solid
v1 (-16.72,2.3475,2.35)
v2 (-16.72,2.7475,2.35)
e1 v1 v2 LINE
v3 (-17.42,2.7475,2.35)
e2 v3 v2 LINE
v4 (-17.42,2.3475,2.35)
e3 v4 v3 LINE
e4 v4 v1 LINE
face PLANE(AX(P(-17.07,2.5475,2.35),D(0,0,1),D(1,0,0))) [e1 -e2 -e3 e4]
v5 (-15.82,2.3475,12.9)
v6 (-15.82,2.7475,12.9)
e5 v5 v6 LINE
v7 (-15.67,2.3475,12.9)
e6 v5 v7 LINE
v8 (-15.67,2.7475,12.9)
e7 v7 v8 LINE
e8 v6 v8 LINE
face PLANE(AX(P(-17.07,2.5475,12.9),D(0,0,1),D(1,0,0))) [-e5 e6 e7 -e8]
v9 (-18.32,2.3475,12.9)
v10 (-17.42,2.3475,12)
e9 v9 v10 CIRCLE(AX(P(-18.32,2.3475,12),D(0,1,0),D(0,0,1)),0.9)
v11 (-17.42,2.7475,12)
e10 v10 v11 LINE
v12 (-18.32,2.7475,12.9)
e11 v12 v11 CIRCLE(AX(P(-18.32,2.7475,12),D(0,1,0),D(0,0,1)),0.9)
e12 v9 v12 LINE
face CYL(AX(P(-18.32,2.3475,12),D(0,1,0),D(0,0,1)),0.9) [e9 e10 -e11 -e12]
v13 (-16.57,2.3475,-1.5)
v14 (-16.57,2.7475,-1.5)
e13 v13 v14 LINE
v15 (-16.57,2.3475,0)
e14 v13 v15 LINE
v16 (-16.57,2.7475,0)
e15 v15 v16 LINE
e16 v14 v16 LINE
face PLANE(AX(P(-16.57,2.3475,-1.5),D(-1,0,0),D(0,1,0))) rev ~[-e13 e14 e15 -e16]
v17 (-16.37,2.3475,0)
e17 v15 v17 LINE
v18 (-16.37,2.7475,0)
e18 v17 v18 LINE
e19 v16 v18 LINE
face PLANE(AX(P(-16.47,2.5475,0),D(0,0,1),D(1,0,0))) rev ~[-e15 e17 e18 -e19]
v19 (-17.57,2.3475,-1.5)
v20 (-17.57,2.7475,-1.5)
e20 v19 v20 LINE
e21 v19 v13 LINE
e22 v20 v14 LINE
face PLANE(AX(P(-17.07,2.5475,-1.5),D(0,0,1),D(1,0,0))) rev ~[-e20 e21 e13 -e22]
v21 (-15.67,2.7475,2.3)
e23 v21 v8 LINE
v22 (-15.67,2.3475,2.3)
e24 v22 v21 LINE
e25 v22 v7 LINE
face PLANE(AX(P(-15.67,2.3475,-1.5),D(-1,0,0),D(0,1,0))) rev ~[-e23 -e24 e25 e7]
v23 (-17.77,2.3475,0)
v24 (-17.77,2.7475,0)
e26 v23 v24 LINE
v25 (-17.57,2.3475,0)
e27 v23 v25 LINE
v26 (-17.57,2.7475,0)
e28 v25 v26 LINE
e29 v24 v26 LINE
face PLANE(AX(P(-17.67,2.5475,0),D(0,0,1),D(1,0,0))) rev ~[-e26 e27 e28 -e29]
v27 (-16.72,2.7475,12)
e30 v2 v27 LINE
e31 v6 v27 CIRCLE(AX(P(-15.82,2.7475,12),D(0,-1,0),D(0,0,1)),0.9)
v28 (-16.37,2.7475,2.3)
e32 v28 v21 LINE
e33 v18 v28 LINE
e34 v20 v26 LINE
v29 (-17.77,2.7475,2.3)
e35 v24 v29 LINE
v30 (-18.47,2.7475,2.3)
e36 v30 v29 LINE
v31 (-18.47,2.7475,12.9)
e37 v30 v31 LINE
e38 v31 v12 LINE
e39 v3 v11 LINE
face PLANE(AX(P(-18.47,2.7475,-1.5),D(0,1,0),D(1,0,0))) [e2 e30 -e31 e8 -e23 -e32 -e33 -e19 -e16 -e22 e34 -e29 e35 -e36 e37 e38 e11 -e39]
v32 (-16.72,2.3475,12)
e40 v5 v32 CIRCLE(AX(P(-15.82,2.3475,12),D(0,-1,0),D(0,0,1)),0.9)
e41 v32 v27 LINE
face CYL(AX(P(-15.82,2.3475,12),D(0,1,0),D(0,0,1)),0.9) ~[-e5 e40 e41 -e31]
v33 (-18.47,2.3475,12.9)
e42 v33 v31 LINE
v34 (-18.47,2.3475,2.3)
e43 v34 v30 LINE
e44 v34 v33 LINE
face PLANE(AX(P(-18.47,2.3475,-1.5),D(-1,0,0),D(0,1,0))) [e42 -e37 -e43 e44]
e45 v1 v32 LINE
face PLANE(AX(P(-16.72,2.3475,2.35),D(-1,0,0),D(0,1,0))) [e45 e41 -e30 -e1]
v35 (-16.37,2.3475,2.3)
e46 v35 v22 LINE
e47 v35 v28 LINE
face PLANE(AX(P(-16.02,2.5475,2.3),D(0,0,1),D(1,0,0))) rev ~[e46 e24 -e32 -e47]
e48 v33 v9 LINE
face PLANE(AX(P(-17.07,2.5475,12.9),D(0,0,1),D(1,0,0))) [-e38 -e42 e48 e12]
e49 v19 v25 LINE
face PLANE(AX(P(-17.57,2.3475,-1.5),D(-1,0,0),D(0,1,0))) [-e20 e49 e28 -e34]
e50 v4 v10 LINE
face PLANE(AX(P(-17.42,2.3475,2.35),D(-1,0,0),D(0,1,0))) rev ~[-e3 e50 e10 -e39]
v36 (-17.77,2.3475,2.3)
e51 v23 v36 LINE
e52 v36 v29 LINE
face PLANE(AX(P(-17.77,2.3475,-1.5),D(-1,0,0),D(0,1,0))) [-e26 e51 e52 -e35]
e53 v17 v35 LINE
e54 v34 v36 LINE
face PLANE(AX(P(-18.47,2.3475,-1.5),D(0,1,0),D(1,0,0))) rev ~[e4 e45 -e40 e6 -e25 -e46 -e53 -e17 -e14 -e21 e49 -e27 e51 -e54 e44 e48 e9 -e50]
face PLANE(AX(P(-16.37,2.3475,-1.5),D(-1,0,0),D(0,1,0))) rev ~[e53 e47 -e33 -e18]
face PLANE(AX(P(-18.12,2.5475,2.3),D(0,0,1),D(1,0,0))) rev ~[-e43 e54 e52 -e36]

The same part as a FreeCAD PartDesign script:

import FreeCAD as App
import Part
import Sketcher
from FreeCAD import Vector
Q = App.Units.Quantity


def edges_at(feature, points):
    """Names of the edges that pass closest to the given points."""
    edges = feature.Shape.Edges
    near = lambda p: min(range(len(edges)), key=lambda i: edges[i].distToShape(Part.Vertex(*p))[0])
    return sorted({f"Edge{near(p) + 1}" for p in points})

doc = App.newDocument("Part")
params = doc.addObject("Spreadsheet::Sheet", "Params")
for row, (alias, value) in enumerate([
    ("sketch1_width", "2.8 mm"),
    ("sketch1_height", "0.4 mm"),
    ("pad1_length", "14.4 mm"),
    ("sketch2_width", "0.7 mm"),
    ("sketch2_height", "0.4 mm"),
    ("pocket1_length", "10.55 mm"),
    ("sketch3_width", "0.7 mm"),
    ("sketch3_height", "0.4 mm"),
    ("pocket2_length", "3.8 mm"),
    ("sketch4_width", "0.7 mm"),
    ("sketch4_height", "0.4 mm"),
    ("pocket3_length", "3.8 mm"),
    ("sketch5_width", "0.2 mm"),
    ("sketch5_height", "0.4 mm"),
    ("pocket4_length", "1.5 mm"),
    ("sketch6_width", "0.2 mm"),
    ("sketch6_height", "0.4 mm"),
    ("pocket5_length", "1.5 mm"),
    ("fillet_radius", "0.9 mm"),
], start=1):
    params.set(f"A{row}", alias)
    params.set(f"B{row}", "=" + value)
    params.setAlias(f"B{row}", alias)

body = doc.addObject("PartDesign::Body", "Body")

sketch1 = body.newObject("Sketcher::SketchObject", "Sketch")
sketch1.AttachmentSupport = (doc.getObject("XY_Plane"), [""])
sketch1.MapMode = "FlatFace"
sketch1.AttachmentOffset = App.Placement(Vector(0, 0, -1.5), App.Rotation())
sketch1.addGeometry([
    Part.LineSegment(Vector(-20.85, -2.34, 0), Vector(-20.85, -2.74, 0)),
    Part.LineSegment(Vector(-20.85, -2.74, 0), Vector(-18.05, -2.74, 0)),
    Part.LineSegment(Vector(-18.05, -2.74, 0), Vector(-18.05, -2.34, 0)),
    Part.LineSegment(Vector(-18.05, -2.34, 0), Vector(-20.85, -2.34, 0)),
], False)
sketch1.addConstraint([
    Sketcher.Constraint("Coincident", 0, 2, 1, 1),
    Sketcher.Constraint("Coincident", 1, 2, 2, 1),
    Sketcher.Constraint("Coincident", 2, 2, 3, 1),
    Sketcher.Constraint("Coincident", 3, 2, 0, 1),
    Sketcher.Constraint("Vertical", 0),
    Sketcher.Constraint("Horizontal", 1),
    Sketcher.Constraint("Vertical", 2),
    Sketcher.Constraint("Horizontal", 3),
    Sketcher.Constraint("DistanceX", 1, 1, 1, 2, Q("2.8 mm")),
    Sketcher.Constraint("DistanceY", 0, 2, 0, 1, Q("0.4 mm")),
    Sketcher.Constraint("DistanceX", 0, 2, -1, 1, Q("20.85 mm")),
    Sketcher.Constraint("DistanceY", 0, 2, -1, 1, Q("2.74 mm")),
])
sketch1.setExpression("Constraints[8]", "Params.sketch1_width")
sketch1.setExpression("Constraints[9]", "Params.sketch1_height")
pad1 = body.newObject("PartDesign::Pad", "Pad")
pad1.Profile = sketch1
pad1.setExpression("Length", "Params.pad1_length")

sketch2 = body.newObject("Sketcher::SketchObject", "Sketch001")
sketch2.AttachmentSupport = (doc.getObject("XY_Plane"), [""])
sketch2.MapMode = "FlatFace"
sketch2.AttachmentOffset = App.Placement(Vector(0, 0, 2.35), App.Rotation())
sketch2.addGeometry([
    Part.LineSegment(Vector(-19.8, -2.34, 0), Vector(-19.8, -2.74, 0)),
    Part.LineSegment(Vector(-19.8, -2.74, 0), Vector(-19.1, -2.74, 0)),
    Part.LineSegment(Vector(-19.1, -2.74, 0), Vector(-19.1, -2.34, 0)),
    Part.LineSegment(Vector(-19.1, -2.34, 0), Vector(-19.8, -2.34, 0)),
], False)
sketch2.addConstraint([
    Sketcher.Constraint("Coincident", 0, 2, 1, 1),
    Sketcher.Constraint("Coincident", 1, 2, 2, 1),
    Sketcher.Constraint("Coincident", 2, 2, 3, 1),
    Sketcher.Constraint("Coincident", 3, 2, 0, 1),
    Sketcher.Constraint("Vertical", 0),
    Sketcher.Constraint("Horizontal", 1),
    Sketcher.Constraint("Vertical", 2),
    Sketcher.Constraint("Horizontal", 3),
    Sketcher.Constraint("DistanceX", 1, 1, 1, 2, Q("0.7 mm")),
    Sketcher.Constraint("DistanceY", 0, 2, 0, 1, Q("0.4 mm")),
    Sketcher.Constraint("DistanceX", 0, 2, -1, 1, Q("19.8 mm")),
    Sketcher.Constraint("DistanceY", 0, 2, -1, 1, Q("2.74 mm")),
])
sketch2.setExpression("Constraints[8]", "Params.sketch2_width")
sketch2.setExpression("Constraints[9]", "Params.sketch2_height")
pocket1 = body.newObject("PartDesign::Pocket", "Pocket")
pocket1.Profile = sketch2
pocket1.setExpression("Length", "Params.pocket1_length")
pocket1.Reversed = True

sketch3 = body.newObject("Sketcher::SketchObject", "Sketch002")
sketch3.AttachmentSupport = (doc.getObject("XY_Plane"), [""])
sketch3.MapMode = "FlatFace"
sketch3.AttachmentOffset = App.Placement(Vector(0, 0, -1.5), App.Rotation())
sketch3.addGeometry([
    Part.LineSegment(Vector(-20.85, -2.34, 0), Vector(-20.85, -2.74, 0)),
    Part.LineSegment(Vector(-20.85, -2.74, 0), Vector(-20.15, -2.74, 0)),
    Part.LineSegment(Vector(-20.15, -2.74, 0), Vector(-20.15, -2.34, 0)),
    Part.LineSegment(Vector(-20.15, -2.34, 0), Vector(-20.85, -2.34, 0)),
], False)
sketch3.addConstraint([
    Sketcher.Constraint("Coincident", 0, 2, 1, 1),
    Sketcher.Constraint("Coincident", 1, 2, 2, 1),
    Sketcher.Constraint("Coincident", 2, 2, 3, 1),
    Sketcher.Constraint("Coincident", 3, 2, 0, 1),
    Sketcher.Constraint("Vertical", 0),
    Sketcher.Constraint("Horizontal", 1),
    Sketcher.Constraint("Vertical", 2),
    Sketcher.Constraint("Horizontal", 3),
    Sketcher.Constraint("DistanceX", 1, 1, 1, 2, Q("0.7 mm")),
    Sketcher.Constraint("DistanceY", 0, 2, 0, 1, Q("0.4 mm")),
    Sketcher.Constraint("DistanceX", 0, 2, -1, 1, Q("20.85 mm")),
    Sketcher.Constraint("DistanceY", 0, 2, -1, 1, Q("2.74 mm")),
])
sketch3.setExpression("Constraints[8]", "Params.sketch3_width")
sketch3.setExpression("Constraints[9]", "Params.sketch3_height")
pocket2 = body.newObject("PartDesign::Pocket", "Pocket001")
pocket2.Profile = sketch3
pocket2.setExpression("Length", "Params.pocket2_length")
pocket2.Reversed = True

sketch4 = body.newObject("Sketcher::SketchObject", "Sketch003")
sketch4.AttachmentSupport = (doc.getObject("XY_Plane"), [""])
sketch4.MapMode = "FlatFace"
sketch4.AttachmentOffset = App.Placement(Vector(0, 0, -1.5), App.Rotation())
sketch4.addGeometry([
    Part.LineSegment(Vector(-18.75, -2.34, 0), Vector(-18.75, -2.74, 0)),
    Part.LineSegment(Vector(-18.75, -2.74, 0), Vector(-18.05, -2.74, 0)),
    Part.LineSegment(Vector(-18.05, -2.74, 0), Vector(-18.05, -2.34, 0)),
    Part.LineSegment(Vector(-18.05, -2.34, 0), Vector(-18.75, -2.34, 0)),
], False)
sketch4.addConstraint([
    Sketcher.Constraint("Coincident", 0, 2, 1, 1),
    Sketcher.Constraint("Coincident", 1, 2, 2, 1),
    Sketcher.Constraint("Coincident", 2, 2, 3, 1),
    Sketcher.Constraint("Coincident", 3, 2, 0, 1),
    Sketcher.Constraint("Vertical", 0),
    Sketcher.Constraint("Horizontal", 1),
    Sketcher.Constraint("Vertical", 2),
    Sketcher.Constraint("Horizontal", 3),
    Sketcher.Constraint("DistanceX", 1, 1, 1, 2, Q("0.7 mm")),
    Sketcher.Constraint("DistanceY", 0, 2, 0, 1, Q("0.4 mm")),
    Sketcher.Constraint("DistanceX", 0, 2, -1, 1, Q("18.75 mm")),
    Sketcher.Constraint("DistanceY", 0, 2, -1, 1, Q("2.74 mm")),
])
sketch4.setExpression("Constraints[8]", "Params.sketch4_width")
sketch4.setExpression("Constraints[9]", "Params.sketch4_height")
pocket3 = body.newObject("PartDesign::Pocket", "Pocket002")
pocket3.Profile = sketch4
pocket3.setExpression("Length", "Params.pocket3_length")
pocket3.Reversed = True

sketch5 = body.newObject("Sketcher::SketchObject", "Sketch004")
sketch5.AttachmentSupport = (doc.getObject("XY_Plane"), [""])
sketch5.MapMode = "FlatFace"
sketch5.AttachmentOffset = App.Placement(Vector(0, 0, -1.5), App.Rotation())
sketch5.addGeometry([
    Part.LineSegment(Vector(-20.15, -2.34, 0), Vector(-20.15, -2.74, 0)),
    Part.LineSegment(Vector(-20.15, -2.74, 0), Vector(-19.95, -2.74, 0)),
    Part.LineSegment(Vector(-19.95, -2.74, 0), Vector(-19.95, -2.34, 0)),
    Part.LineSegment(Vector(-19.95, -2.34, 0), Vector(-20.15, -2.34, 0)),
], False)
sketch5.addConstraint([
    Sketcher.Constraint("Coincident", 0, 2, 1, 1),
    Sketcher.Constraint("Coincident", 1, 2, 2, 1),
    Sketcher.Constraint("Coincident", 2, 2, 3, 1),
    Sketcher.Constraint("Coincident", 3, 2, 0, 1),
    Sketcher.Constraint("Vertical", 0),
    Sketcher.Constraint("Horizontal", 1),
    Sketcher.Constraint("Vertical", 2),
    Sketcher.Constraint("Horizontal", 3),
    Sketcher.Constraint("DistanceX", 1, 1, 1, 2, Q("0.2 mm")),
    Sketcher.Constraint("DistanceY", 0, 2, 0, 1, Q("0.4 mm")),
    Sketcher.Constraint("DistanceX", 0, 2, -1, 1, Q("20.15 mm")),
    Sketcher.Constraint("DistanceY", 0, 2, -1, 1, Q("2.74 mm")),
])
sketch5.setExpression("Constraints[8]", "Params.sketch5_width")
sketch5.setExpression("Constraints[9]", "Params.sketch5_height")
pocket4 = body.newObject("PartDesign::Pocket", "Pocket003")
pocket4.Profile = sketch5
pocket4.setExpression("Length", "Params.pocket4_length")
pocket4.Reversed = True

sketch6 = body.newObject("Sketcher::SketchObject", "Sketch005")
sketch6.AttachmentSupport = (doc.getObject("XY_Plane"), [""])
sketch6.MapMode = "FlatFace"
sketch6.AttachmentOffset = App.Placement(Vector(0, 0, -1.5), App.Rotation())
sketch6.addGeometry([
    Part.LineSegment(Vector(-18.95, -2.34, 0), Vector(-18.95, -2.74, 0)),
    Part.LineSegment(Vector(-18.95, -2.74, 0), Vector(-18.75, -2.74, 0)),
    Part.LineSegment(Vector(-18.75, -2.74, 0), Vector(-18.75, -2.34, 0)),
    Part.LineSegment(Vector(-18.75, -2.34, 0), Vector(-18.95, -2.34, 0)),
], False)
sketch6.addConstraint([
    Sketcher.Constraint("Coincident", 0, 2, 1, 1),
    Sketcher.Constraint("Coincident", 1, 2, 2, 1),
    Sketcher.Constraint("Coincident", 2, 2, 3, 1),
    Sketcher.Constraint("Coincident", 3, 2, 0, 1),
    Sketcher.Constraint("Vertical", 0),
    Sketcher.Constraint("Horizontal", 1),
    Sketcher.Constraint("Vertical", 2),
    Sketcher.Constraint("Horizontal", 3),
    Sketcher.Constraint("DistanceX", 1, 1, 1, 2, Q("0.2 mm")),
    Sketcher.Constraint("DistanceY", 0, 2, 0, 1, Q("0.4 mm")),
    Sketcher.Constraint("DistanceX", 0, 2, -1, 1, Q("18.95 mm")),
    Sketcher.Constraint("DistanceY", 0, 2, -1, 1, Q("2.74 mm")),
])
sketch6.setExpression("Constraints[8]", "Params.sketch6_width")
sketch6.setExpression("Constraints[9]", "Params.sketch6_height")
pocket5 = body.newObject("PartDesign::Pocket", "Pocket004")
pocket5.Profile = sketch6
pocket5.setExpression("Length", "Params.pocket5_length")
pocket5.Reversed = True
doc.recompute()

fillet = body.newObject("PartDesign::Fillet", "Fillet")
fillet.Base = (pocket5, edges_at(pocket5, [(-19.8, -2.54, 12.9), (-19.1, -2.54, 12.9)]))
fillet.setExpression("Radius", "Params.fillet_radius")
body2 = doc.addObject("PartDesign::Body", "Body001")
doc.recompute()

body.Placement = App.Placement(Vector(2.38, 5.0875, 0), App.Rotation(Vector(0, 0, 1), 0))
boolean = body2.newObject("PartDesign::Boolean", "Boolean")
boolean.Type = "Fuse"
boolean.addObjects([body])

doc.recompute()
